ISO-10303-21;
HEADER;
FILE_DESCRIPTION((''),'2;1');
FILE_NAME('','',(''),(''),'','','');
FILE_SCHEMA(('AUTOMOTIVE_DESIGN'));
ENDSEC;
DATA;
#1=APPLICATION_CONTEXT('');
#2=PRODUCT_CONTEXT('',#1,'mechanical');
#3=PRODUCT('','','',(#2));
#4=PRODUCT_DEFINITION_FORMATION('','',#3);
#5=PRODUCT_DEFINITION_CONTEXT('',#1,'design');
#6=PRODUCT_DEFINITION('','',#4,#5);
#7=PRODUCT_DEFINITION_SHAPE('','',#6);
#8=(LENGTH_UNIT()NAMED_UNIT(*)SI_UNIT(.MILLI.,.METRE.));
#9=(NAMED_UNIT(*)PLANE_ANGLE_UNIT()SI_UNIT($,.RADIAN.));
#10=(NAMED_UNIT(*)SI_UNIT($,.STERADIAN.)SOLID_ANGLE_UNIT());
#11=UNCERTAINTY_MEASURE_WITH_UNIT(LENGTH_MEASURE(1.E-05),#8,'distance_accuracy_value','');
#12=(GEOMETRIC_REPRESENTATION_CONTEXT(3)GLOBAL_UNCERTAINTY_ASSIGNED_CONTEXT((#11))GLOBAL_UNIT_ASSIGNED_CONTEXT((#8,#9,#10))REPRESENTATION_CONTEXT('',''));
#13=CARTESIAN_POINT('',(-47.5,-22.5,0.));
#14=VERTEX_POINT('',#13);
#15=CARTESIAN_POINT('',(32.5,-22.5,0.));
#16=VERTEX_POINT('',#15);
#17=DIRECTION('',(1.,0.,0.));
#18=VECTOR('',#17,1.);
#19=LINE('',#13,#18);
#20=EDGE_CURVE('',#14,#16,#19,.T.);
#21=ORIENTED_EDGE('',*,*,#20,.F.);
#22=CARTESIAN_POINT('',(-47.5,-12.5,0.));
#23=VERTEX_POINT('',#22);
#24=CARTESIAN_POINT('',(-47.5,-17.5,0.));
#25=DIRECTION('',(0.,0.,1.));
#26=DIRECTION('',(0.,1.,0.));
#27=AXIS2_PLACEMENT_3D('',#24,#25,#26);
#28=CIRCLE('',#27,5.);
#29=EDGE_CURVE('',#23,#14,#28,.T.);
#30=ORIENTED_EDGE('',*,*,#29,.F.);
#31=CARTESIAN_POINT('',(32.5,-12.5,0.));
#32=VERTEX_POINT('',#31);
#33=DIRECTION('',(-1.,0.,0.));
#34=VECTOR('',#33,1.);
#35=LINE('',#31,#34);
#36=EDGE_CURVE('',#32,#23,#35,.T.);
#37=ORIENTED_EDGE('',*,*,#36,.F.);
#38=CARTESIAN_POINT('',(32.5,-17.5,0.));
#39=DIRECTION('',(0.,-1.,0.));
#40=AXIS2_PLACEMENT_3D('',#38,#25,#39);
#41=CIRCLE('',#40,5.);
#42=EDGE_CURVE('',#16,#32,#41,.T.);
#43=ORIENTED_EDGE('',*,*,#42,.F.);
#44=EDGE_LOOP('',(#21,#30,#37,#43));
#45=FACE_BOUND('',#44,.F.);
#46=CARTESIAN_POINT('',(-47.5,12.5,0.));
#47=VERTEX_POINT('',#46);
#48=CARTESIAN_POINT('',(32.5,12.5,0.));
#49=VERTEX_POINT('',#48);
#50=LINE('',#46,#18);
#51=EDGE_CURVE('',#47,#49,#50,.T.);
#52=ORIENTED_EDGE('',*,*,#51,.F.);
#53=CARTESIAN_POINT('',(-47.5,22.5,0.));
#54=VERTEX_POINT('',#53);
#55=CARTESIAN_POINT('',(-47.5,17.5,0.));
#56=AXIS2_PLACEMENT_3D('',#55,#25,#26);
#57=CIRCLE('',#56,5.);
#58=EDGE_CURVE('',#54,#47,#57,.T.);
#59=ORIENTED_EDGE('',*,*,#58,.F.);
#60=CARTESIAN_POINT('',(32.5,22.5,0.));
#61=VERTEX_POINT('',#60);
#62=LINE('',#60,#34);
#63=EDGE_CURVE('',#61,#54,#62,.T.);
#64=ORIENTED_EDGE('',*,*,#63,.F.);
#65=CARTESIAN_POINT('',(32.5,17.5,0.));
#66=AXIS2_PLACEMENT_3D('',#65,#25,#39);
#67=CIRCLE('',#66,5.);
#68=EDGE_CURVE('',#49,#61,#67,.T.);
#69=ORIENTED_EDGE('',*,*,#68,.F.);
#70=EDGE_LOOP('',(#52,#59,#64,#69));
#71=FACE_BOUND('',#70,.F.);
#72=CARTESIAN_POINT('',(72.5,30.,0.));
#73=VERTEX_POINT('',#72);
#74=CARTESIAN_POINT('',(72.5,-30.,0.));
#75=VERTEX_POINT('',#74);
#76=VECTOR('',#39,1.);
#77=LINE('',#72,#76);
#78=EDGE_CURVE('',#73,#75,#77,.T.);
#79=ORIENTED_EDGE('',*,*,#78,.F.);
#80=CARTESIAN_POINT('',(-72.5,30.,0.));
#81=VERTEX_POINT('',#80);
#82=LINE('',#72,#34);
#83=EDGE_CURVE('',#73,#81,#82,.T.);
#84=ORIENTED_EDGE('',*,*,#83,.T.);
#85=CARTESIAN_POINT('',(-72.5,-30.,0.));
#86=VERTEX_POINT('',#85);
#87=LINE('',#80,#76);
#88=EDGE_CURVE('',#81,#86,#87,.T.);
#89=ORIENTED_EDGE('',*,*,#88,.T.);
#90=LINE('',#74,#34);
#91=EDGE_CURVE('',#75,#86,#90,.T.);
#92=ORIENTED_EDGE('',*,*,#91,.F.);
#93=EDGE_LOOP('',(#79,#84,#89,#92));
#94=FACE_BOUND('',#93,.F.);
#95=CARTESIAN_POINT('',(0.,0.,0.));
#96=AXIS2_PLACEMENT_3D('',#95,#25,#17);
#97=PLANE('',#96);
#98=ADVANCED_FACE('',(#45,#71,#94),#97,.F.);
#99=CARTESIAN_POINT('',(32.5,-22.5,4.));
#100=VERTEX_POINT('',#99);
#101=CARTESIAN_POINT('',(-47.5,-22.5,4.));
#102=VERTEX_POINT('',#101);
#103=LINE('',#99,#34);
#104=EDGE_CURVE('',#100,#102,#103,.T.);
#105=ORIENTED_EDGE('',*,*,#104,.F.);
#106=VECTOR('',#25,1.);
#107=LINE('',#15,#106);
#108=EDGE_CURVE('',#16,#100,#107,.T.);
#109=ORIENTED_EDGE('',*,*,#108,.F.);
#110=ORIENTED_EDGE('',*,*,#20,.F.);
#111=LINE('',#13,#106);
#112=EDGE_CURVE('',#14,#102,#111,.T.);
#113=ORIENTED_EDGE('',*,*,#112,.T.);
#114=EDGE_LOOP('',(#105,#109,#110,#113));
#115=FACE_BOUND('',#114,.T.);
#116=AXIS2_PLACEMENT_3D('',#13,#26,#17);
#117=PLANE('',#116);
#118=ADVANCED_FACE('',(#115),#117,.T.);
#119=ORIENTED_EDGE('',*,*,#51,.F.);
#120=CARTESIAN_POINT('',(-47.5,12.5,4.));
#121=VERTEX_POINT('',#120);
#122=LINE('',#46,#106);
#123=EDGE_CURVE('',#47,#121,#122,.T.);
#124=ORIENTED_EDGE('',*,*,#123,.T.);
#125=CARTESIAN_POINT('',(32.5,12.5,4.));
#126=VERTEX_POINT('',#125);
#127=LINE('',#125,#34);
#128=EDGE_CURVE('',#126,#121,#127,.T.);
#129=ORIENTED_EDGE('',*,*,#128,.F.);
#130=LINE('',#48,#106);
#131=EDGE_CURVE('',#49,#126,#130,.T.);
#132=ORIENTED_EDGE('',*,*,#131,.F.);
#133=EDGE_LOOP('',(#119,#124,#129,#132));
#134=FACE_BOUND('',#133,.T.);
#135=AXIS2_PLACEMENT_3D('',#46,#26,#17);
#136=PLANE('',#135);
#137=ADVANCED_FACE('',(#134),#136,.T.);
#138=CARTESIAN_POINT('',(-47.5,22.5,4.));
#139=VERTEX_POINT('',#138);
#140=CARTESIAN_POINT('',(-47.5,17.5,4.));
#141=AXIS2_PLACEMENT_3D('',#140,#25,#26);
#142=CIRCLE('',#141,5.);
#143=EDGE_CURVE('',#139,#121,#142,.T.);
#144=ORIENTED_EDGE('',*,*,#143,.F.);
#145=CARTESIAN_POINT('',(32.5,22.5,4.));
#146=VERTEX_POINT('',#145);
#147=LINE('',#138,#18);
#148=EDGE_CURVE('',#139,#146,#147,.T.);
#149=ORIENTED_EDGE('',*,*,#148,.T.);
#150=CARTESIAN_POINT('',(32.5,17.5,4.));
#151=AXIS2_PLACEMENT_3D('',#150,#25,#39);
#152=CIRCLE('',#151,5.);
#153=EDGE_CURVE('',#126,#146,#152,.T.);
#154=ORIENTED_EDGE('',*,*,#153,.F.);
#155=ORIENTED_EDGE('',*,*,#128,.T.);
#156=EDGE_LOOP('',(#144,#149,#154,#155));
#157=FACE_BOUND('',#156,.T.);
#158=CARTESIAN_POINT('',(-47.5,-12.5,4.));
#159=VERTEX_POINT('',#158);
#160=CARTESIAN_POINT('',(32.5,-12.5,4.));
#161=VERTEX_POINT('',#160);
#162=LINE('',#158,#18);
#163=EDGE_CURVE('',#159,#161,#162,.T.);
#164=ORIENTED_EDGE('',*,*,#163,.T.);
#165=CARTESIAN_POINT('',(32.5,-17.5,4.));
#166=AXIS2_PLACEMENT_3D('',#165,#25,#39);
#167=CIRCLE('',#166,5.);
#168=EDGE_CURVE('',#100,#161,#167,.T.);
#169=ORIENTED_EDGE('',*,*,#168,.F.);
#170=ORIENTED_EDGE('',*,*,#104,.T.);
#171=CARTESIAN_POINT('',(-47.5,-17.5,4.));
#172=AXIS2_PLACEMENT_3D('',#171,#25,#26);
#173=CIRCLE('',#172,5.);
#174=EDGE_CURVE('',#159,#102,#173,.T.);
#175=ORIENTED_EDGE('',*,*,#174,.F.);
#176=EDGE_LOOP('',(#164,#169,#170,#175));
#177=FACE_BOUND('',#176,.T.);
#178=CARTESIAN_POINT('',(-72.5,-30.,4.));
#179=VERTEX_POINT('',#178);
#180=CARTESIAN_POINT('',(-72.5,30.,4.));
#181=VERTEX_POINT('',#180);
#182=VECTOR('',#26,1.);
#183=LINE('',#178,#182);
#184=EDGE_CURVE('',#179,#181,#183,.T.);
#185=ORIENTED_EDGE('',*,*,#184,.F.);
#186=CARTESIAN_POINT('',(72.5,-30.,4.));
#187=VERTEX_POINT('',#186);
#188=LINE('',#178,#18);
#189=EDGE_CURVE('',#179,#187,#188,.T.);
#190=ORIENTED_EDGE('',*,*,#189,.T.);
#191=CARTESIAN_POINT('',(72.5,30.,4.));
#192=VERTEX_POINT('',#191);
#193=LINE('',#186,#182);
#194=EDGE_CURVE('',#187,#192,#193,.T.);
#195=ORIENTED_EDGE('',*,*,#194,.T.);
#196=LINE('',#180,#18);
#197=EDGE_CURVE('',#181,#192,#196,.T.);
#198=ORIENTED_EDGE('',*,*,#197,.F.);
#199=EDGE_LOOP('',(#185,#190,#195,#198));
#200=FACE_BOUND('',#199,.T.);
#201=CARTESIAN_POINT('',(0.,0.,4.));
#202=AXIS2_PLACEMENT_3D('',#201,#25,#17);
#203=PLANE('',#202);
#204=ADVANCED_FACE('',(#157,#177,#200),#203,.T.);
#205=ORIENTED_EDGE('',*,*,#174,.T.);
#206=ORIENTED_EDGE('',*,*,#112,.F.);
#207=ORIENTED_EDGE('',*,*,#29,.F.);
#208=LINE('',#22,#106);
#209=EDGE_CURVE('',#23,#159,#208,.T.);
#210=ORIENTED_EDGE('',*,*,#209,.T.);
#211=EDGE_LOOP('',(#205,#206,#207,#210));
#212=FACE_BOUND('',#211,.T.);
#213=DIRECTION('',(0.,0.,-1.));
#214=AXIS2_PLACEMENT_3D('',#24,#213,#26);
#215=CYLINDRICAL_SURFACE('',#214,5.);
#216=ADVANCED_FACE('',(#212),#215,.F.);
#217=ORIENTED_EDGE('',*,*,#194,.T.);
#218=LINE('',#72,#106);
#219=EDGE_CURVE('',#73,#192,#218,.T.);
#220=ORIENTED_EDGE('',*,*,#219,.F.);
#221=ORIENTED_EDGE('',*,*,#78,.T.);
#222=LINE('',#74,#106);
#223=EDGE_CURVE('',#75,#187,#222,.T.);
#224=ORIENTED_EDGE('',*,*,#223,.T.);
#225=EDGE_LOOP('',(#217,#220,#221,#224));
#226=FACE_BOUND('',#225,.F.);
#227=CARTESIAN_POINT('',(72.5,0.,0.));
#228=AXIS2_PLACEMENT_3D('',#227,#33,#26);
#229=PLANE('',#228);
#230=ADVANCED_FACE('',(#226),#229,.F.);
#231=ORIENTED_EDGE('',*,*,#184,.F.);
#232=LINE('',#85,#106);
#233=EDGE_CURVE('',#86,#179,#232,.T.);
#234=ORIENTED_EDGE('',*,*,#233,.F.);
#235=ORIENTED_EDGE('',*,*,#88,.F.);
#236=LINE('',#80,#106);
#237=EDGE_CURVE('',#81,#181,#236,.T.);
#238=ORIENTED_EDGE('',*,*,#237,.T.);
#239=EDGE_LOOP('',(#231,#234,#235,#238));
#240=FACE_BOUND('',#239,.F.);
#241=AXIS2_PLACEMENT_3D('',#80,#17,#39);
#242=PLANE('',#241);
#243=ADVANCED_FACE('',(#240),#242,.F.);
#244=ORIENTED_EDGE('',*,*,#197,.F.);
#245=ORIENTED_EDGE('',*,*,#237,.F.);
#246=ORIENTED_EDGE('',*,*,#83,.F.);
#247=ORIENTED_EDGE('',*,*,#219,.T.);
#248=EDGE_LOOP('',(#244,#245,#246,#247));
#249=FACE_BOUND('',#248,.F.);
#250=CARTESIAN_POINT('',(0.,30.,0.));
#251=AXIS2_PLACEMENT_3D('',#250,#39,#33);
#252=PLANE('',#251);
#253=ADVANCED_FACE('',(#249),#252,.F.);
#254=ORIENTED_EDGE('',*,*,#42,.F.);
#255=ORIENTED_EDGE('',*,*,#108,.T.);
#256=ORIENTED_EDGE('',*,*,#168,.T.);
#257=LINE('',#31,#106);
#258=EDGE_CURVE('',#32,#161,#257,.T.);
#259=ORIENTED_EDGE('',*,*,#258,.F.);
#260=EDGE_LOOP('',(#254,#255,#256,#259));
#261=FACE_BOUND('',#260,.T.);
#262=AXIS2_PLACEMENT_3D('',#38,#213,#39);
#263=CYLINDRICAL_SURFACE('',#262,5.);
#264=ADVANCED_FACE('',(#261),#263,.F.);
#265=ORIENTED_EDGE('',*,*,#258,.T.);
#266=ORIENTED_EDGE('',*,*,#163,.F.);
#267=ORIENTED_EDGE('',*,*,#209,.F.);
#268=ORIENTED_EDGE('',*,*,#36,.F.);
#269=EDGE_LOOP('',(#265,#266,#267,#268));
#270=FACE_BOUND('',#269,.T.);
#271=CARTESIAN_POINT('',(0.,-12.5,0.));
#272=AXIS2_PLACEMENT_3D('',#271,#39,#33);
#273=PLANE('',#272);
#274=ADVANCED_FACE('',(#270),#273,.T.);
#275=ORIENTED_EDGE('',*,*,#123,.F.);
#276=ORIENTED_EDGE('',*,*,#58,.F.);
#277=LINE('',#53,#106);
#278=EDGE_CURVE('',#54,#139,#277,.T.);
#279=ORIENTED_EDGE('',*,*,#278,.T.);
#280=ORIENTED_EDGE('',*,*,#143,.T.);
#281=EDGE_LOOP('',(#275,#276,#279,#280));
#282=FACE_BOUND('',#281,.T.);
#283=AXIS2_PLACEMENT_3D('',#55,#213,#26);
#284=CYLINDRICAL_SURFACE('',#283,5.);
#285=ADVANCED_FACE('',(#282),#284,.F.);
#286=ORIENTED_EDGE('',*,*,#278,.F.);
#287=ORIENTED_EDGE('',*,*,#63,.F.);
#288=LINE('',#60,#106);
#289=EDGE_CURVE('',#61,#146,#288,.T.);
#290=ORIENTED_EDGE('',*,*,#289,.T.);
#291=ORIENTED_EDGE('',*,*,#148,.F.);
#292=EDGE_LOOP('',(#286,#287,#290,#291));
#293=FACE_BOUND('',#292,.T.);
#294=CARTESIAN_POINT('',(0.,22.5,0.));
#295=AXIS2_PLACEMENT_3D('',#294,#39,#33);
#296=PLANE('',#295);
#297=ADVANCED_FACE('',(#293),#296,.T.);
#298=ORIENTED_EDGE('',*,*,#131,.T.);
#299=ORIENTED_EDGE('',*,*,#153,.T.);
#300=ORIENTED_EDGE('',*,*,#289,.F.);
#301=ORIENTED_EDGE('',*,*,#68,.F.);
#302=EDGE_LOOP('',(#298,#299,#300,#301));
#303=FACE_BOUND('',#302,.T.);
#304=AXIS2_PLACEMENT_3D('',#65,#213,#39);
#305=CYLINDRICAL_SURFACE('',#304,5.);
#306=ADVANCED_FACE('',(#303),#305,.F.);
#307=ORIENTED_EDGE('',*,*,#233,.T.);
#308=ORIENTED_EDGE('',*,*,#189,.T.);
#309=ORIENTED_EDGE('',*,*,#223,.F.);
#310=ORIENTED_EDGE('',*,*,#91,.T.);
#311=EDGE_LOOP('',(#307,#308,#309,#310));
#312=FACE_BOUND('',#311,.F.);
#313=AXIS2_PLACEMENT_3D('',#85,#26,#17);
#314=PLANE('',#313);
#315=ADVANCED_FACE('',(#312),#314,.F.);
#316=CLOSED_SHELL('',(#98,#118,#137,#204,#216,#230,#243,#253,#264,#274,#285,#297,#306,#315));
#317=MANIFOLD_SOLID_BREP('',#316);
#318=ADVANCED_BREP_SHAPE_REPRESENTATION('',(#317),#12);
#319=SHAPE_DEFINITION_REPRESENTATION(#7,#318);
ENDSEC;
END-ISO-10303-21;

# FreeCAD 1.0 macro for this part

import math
import FreeCAD as App
import Part
import Sketcher
from FreeCAD import Vector
Q = App.Units.Quantity


def add_polygon(sketch, points):
    """Adds a closed chain of lines whose ends are joined by coincident constraints."""
    first, n = sketch.GeometryCount, len(points)
    for a, b in zip(points, points[1:] + points[:1]):
        sketch.addGeometry(Part.LineSegment(App.Vector(*a, 0), App.Vector(*b, 0)), False)
    for i in range(n):
        sketch.addConstraint(Sketcher.Constraint("Coincident", first + i, 2, first + (i + 1) % n, 1))

doc = App.newDocument("Part")
params = doc.addObject("Spreadsheet::Sheet", "Params")
for row, (alias, value) in enumerate([
    ("sketch1_radius", "5 mm"),
    ("sketch1_width", "145 mm"),
    ("sketch1_height", "60 mm"),
    ("pad1_length", "4 mm"),
], start=1):
    params.set(f"A{row}", alias)
    params.set(f"B{row}", "=" + value)
    params.setAlias(f"B{row}", alias)

body = doc.addObject("PartDesign::Body", "Body")

sketch1 = body.newObject("Sketcher::SketchObject", "Sketch")
sketch1.AttachmentSupport = (doc.getObject("XY_Plane"), [""])
sketch1.MapMode = "FlatFace"
add_polygon(sketch1, [(-72, 30), (-72, -30), (72, -30), (72, 30)])
sketch1.addGeometry(Part.LineSegment(Vector(-48, 22, 0), Vector(32, 22, 0)), False)
sketch1.addGeometry(Part.ArcOfCircle(Part.Circle(Vector(32, 18, 0), Vector(0, 0, 1), 5), math.radians(-90), math.radians(90)), False)
sketch1.addGeometry(Part.LineSegment(Vector(32, 12, 0), Vector(-48, 12, 0)), False)
sketch1.addGeometry(Part.ArcOfCircle(Part.Circle(Vector(-48, 18, 0), Vector(0, 0, 1), 5), math.radians(90), math.radians(270)), False)
sketch1.addGeometry(Part.LineSegment(Vector(-48, -12, 0), Vector(32, -12, 0)), False)
sketch1.addGeometry(Part.ArcOfCircle(Part.Circle(Vector(32, -18, 0), Vector(0, 0, 1), 5), math.radians(-90), math.radians(90)), False)
sketch1.addGeometry(Part.LineSegment(Vector(32, -22, 0), Vector(-48, -22, 0)), False)
sketch1.addGeometry(Part.ArcOfCircle(Part.Circle(Vector(-48, -18, 0), Vector(0, 0, 1), 5), math.radians(90), math.radians(270)), False)
sketch1.addConstraint(Sketcher.Constraint("Tangent", 4, 2, 5, 2))
sketch1.addConstraint(Sketcher.Constraint("Tangent", 5, 1, 6, 1))
sketch1.addConstraint(Sketcher.Constraint("Tangent", 6, 2, 7, 2))
sketch1.addConstraint(Sketcher.Constraint("Tangent", 7, 1, 4, 1))
sketch1.addConstraint(Sketcher.Constraint("Tangent", 8, 2, 9, 2))
sketch1.addConstraint(Sketcher.Constraint("Tangent", 9, 1, 10, 1))
sketch1.addConstraint(Sketcher.Constraint("Tangent", 10, 2, 11, 2))
sketch1.addConstraint(Sketcher.Constraint("Tangent", 11, 1, 8, 1))
sketch1.addConstraint(Sketcher.Constraint("Vertical", 0))
sketch1.addConstraint(Sketcher.Constraint("Horizontal", 1))
sketch1.addConstraint(Sketcher.Constraint("Vertical", 2))
sketch1.addConstraint(Sketcher.Constraint("Horizontal", 3))
sketch1.addConstraint(Sketcher.Constraint("Horizontal", 4))
sketch1.addConstraint(Sketcher.Constraint("Horizontal", 6))
sketch1.addConstraint(Sketcher.Constraint("Horizontal", 8))
sketch1.addConstraint(Sketcher.Constraint("Horizontal", 10))
sketch1.addConstraint(Sketcher.Constraint("Equal", 7, 9))
sketch1.addConstraint(Sketcher.Constraint("Symmetric", 0, 2, 2, 2, -1, 1))
sketch1.addConstraint(Sketcher.Constraint("Symmetric", 5, 3, 9, 3, -1))
sketch1.addConstraint(Sketcher.Constraint("Vertical", 7, 3, 11, 3))
sketch1.addConstraint(Sketcher.Constraint("Radius", 5, Q("5 mm")))
sketch1.addConstraint(Sketcher.Constraint("DistanceX", 1, 1, 1, 2, Q("145 mm")))
sketch1.addConstraint(Sketcher.Constraint("DistanceY", 0, 2, 0, 1, Q("60 mm")))
sketch1.addConstraint(Sketcher.Constraint("DistanceY", 9, 3, 5, 3, Q("35 mm")))
sketch1.addConstraint(Sketcher.Constraint("DistanceX", -1, 1, 5, 3, Q("32.5 mm")))
sketch1.addConstraint(Sketcher.Constraint("DistanceX", 7, 3, -1, 1, Q("47.5 mm")))
sketch1.setExpression("Constraints[24]", "Params.sketch1_radius")
sketch1.setExpression("Constraints[25]", "Params.sketch1_width")
sketch1.setExpression("Constraints[26]", "Params.sketch1_height")
pad1 = body.newObject("PartDesign::Pad", "Pad")
pad1.Profile = sketch1
pad1.setExpression("Length", "Params.pad1_length")

doc.recompute()
